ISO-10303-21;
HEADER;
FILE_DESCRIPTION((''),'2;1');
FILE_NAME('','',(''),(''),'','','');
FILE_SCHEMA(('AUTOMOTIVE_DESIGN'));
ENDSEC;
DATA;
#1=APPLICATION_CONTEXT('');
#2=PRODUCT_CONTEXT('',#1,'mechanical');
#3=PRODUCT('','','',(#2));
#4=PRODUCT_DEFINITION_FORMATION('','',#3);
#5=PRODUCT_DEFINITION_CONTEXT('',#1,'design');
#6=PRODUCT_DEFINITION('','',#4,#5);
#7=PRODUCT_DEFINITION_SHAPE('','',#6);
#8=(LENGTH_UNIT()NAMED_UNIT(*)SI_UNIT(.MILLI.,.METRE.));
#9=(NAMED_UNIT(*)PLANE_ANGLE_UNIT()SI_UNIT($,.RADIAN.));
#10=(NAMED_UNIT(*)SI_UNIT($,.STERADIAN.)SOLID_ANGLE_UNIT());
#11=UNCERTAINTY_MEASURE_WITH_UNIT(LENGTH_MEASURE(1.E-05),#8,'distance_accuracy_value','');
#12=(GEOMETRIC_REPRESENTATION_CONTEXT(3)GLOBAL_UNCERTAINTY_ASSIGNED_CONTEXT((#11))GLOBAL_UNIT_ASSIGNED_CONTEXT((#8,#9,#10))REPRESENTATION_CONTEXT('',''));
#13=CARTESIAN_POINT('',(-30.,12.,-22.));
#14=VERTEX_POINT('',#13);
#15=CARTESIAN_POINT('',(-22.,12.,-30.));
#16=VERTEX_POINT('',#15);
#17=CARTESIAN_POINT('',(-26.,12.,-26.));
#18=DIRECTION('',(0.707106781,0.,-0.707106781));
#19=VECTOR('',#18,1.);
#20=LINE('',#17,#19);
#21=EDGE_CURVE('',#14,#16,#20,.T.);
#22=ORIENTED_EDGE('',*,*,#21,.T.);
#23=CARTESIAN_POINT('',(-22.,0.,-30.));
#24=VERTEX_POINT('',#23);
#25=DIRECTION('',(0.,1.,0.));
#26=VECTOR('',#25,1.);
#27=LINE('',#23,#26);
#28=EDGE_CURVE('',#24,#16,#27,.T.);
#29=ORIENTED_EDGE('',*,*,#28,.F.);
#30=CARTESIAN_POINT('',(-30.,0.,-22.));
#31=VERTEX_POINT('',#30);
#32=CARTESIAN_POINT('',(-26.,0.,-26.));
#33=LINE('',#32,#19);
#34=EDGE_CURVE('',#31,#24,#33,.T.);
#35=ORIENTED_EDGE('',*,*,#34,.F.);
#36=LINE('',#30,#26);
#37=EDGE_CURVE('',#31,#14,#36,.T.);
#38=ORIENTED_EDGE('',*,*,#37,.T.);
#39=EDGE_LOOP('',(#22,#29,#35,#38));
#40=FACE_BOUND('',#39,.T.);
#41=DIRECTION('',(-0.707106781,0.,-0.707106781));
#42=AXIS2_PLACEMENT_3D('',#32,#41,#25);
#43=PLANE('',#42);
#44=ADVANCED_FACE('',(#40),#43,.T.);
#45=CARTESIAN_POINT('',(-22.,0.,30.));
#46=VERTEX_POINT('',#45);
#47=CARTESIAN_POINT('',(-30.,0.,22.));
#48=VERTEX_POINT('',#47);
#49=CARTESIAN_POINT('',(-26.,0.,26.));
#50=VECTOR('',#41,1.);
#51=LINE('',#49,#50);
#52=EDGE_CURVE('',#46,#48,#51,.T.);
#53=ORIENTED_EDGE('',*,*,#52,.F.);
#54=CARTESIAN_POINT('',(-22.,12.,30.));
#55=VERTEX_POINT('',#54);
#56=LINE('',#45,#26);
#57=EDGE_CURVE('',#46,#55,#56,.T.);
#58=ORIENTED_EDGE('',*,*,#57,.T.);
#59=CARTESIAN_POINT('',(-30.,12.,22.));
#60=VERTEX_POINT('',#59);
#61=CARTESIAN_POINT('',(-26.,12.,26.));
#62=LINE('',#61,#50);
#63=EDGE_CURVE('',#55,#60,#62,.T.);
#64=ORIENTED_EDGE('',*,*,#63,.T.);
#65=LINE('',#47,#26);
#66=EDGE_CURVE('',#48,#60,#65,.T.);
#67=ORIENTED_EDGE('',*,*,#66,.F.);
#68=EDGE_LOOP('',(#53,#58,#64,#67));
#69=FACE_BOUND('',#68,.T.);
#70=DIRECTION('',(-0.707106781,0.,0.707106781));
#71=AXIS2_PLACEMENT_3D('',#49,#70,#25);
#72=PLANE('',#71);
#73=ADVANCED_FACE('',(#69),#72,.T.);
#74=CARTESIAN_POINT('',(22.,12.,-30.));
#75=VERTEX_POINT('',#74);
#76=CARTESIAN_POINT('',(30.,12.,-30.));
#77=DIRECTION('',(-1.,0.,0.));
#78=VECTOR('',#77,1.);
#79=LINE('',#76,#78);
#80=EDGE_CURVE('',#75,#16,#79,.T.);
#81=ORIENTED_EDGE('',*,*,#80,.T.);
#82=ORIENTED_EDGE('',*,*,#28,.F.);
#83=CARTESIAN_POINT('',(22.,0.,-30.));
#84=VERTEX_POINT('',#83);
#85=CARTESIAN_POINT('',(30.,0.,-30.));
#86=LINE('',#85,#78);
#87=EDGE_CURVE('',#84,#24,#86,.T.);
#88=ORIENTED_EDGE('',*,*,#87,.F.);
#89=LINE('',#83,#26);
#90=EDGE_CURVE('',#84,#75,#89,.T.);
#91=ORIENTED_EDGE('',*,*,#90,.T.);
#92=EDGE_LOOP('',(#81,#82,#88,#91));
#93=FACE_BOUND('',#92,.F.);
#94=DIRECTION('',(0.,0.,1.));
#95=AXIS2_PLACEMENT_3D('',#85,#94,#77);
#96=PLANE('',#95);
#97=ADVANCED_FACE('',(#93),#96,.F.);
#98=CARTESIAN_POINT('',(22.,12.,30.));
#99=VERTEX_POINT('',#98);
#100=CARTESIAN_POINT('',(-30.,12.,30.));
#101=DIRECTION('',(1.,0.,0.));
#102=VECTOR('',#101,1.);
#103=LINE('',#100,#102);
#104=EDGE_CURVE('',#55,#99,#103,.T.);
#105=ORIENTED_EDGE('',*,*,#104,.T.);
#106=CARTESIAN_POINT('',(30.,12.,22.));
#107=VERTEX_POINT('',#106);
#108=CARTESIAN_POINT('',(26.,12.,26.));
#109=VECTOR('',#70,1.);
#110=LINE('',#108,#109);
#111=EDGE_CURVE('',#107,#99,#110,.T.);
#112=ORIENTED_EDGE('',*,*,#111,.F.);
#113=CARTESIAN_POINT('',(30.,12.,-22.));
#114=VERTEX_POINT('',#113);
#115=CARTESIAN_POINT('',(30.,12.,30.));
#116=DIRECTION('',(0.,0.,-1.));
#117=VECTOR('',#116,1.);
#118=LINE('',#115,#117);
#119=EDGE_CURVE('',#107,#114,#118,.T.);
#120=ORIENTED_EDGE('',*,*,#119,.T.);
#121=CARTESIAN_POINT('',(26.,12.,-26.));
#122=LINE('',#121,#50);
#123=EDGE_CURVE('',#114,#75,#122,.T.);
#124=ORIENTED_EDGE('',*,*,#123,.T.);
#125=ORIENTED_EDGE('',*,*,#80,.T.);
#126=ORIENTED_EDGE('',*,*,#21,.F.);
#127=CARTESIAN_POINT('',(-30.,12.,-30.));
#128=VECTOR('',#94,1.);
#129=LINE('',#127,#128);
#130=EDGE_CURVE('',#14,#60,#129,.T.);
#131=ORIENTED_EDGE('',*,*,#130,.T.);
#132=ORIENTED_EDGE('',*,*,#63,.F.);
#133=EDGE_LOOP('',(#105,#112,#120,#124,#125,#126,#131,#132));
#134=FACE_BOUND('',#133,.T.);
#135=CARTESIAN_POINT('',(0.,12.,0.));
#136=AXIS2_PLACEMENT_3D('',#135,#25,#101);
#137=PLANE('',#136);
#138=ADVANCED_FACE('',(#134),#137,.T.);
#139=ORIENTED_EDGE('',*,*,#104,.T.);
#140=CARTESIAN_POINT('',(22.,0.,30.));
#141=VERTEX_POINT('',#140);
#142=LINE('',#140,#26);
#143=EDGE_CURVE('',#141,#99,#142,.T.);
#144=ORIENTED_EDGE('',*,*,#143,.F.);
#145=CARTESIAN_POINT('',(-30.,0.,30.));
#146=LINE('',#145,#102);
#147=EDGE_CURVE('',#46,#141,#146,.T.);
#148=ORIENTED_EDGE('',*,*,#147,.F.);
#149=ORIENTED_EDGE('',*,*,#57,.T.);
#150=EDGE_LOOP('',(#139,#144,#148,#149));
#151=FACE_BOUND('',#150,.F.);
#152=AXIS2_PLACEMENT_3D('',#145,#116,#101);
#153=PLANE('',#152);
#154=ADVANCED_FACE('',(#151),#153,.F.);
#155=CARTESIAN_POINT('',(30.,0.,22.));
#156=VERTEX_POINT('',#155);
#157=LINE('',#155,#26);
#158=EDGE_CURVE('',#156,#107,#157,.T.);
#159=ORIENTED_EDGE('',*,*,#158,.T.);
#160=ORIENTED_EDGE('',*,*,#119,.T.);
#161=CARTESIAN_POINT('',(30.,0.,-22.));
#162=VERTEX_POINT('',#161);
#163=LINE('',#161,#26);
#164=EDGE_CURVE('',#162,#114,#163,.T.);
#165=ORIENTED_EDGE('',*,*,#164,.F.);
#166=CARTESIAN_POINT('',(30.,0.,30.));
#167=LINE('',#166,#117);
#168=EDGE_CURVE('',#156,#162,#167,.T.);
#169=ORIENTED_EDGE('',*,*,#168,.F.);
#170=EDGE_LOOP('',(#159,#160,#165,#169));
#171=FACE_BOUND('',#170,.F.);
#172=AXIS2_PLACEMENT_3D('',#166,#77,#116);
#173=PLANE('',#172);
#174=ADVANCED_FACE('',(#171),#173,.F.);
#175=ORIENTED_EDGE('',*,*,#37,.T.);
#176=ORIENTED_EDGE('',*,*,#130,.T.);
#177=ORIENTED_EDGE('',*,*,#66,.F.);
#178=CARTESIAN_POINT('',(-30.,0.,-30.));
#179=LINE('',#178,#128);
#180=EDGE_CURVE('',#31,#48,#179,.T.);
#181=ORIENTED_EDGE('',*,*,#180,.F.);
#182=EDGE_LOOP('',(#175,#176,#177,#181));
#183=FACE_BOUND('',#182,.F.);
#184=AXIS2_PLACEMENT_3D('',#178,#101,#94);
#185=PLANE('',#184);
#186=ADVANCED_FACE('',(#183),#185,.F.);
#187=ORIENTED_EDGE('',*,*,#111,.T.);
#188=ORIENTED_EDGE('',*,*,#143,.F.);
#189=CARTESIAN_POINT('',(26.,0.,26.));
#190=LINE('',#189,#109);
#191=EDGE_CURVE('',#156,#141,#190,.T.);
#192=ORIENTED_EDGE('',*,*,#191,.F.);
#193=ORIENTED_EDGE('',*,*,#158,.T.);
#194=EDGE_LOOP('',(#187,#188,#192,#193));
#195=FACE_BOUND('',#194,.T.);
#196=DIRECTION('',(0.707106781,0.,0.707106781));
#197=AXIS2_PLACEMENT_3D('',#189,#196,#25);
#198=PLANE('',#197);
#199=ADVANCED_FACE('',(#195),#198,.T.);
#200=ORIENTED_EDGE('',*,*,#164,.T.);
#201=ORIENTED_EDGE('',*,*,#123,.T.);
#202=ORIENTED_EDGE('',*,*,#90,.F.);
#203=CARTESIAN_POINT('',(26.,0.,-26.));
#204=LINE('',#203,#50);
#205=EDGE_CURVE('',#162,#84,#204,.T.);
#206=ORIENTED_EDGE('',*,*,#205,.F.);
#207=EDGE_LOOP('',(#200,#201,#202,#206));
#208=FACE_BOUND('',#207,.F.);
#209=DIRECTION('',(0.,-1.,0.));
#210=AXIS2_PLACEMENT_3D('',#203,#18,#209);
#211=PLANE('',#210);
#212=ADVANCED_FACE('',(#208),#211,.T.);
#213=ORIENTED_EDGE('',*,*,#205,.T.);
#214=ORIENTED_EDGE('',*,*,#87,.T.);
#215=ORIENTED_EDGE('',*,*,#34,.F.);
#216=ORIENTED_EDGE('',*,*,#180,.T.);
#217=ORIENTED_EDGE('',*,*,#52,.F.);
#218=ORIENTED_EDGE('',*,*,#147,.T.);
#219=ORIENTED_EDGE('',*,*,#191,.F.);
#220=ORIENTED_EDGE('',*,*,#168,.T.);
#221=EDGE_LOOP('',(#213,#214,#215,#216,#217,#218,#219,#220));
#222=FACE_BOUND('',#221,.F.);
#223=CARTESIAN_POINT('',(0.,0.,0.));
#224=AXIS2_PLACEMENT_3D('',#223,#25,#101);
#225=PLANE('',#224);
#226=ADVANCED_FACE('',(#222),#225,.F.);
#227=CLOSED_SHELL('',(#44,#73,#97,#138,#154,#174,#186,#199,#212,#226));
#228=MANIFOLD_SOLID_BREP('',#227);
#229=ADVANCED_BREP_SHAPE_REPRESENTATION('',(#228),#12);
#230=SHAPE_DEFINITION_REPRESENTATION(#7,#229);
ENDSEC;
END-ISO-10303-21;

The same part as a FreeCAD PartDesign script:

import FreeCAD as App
import Part
import Sketcher

V = App.Vector
Q = App.Units.Quantity


def edges_at(feature, points):
    """Names of the edges that pass closest to the given points."""
    edges = feature.Shape.Edges
    near = lambda p: min(range(len(edges)), key=lambda i: edges[i].distToShape(Part.Vertex(*p))[0])
    return sorted({f"Edge{near(p) + 1}" for p in points})


def add_polygon(sketch, points):
    """Adds a closed chain of lines whose ends are joined by coincident constraints."""
    first, n = sketch.GeometryCount, len(points)
    for a, b in zip(points, points[1:] + points[:1]):
        sketch.addGeometry(Part.LineSegment(App.Vector(*a, 0), App.Vector(*b, 0)), False)
    for i in range(n):
        sketch.addConstraint(Sketcher.Constraint("Coincident", first + i, 2, first + (i + 1) % n, 1))

doc = App.newDocument("Part")
params = doc.addObject("Spreadsheet::Sheet", "Params")
for row, (alias, value) in enumerate([
    ("sketch1_width", "60 mm"),
    ("pad1_length", "12 mm"),
    ("chamfer_size", "8 mm"),
    ("chamfer2_size", "8 mm"),
    ("chamfer3_size", "8 mm"),
    ("chamfer4_size", "8 mm"),
], start=1):
    params.set(f"A{row}", alias)
    params.set(f"B{row}", "=" + value)
    params.setAlias(f"B{row}", alias)

body = doc.addObject("PartDesign::Body", "Body")

# Sketch on XZ plane
sketch1 = doc.addObject("Sketcher::SketchObject", "Sketch")
body.addObject(sketch1)
sketch1.AttachmentSupport = (doc.XZ_Plane, [""])
sketch1.MapMode = "FlatFace"
add_polygon(sketch1, [(30, 30), (30, -30), (-30, -30), (-30, 30)])  # lines 0-3
sketch1.addConstraint([
    Sketcher.Constraint("Vertical", 0),
    Sketcher.Constraint("Horizontal", 1),
    Sketcher.Constraint("Vertical", 2),
    Sketcher.Constraint("Horizontal", 3),
    Sketcher.Constraint("Symmetric", 0, 2, 2, 2, -1, 1),
    Sketcher.Constraint("Equal", 3, 0),
    Sketcher.Constraint("DistanceX", 1, 2, 1, 1, Q("60 mm")),
])
sketch1.setExpression("Constraints[10]", "Params.sketch1_width")
pad1 = doc.addObject("PartDesign::Pad", "Pad")
body.addObject(pad1)
pad1.Profile = sketch1
pad1.setExpression("Length", "Params.pad1_length")
pad1.Reversed = True
doc.recompute()

chamfer = doc.addObject("PartDesign::Chamfer", "Chamfer")
body.addObject(chamfer)
chamfer.Base = (pad1, edges_at(pad1, [(30, 6, 30)]))
chamfer.setExpression("Size", "Params.chamfer_size")
doc.recompute()

chamfer2 = doc.addObject("PartDesign::Chamfer", "Chamfer001")
body.addObject(chamfer2)
chamfer2.Base = (chamfer, edges_at(chamfer, [(30, 6, -30)]))
chamfer2.setExpression("Size", "Params.chamfer2_size")
doc.recompute()

chamfer3 = doc.addObject("PartDesign::Chamfer", "Chamfer002")
body.addObject(chamfer3)
chamfer3.Base = (chamfer2, edges_at(chamfer2, [(-30, 6, 30)]))
chamfer3.setExpression("Size", "Params.chamfer3_size")
doc.recompute()

chamfer4 = doc.addObject("PartDesign::Chamfer", "Chamfer003")
body.addObject(chamfer4)
chamfer4.Base = (chamfer3, edges_at(chamfer3, [(-30, 6, -30)]))
chamfer4.setExpression("Size", "Params.chamfer4_size")

doc.recompute()
